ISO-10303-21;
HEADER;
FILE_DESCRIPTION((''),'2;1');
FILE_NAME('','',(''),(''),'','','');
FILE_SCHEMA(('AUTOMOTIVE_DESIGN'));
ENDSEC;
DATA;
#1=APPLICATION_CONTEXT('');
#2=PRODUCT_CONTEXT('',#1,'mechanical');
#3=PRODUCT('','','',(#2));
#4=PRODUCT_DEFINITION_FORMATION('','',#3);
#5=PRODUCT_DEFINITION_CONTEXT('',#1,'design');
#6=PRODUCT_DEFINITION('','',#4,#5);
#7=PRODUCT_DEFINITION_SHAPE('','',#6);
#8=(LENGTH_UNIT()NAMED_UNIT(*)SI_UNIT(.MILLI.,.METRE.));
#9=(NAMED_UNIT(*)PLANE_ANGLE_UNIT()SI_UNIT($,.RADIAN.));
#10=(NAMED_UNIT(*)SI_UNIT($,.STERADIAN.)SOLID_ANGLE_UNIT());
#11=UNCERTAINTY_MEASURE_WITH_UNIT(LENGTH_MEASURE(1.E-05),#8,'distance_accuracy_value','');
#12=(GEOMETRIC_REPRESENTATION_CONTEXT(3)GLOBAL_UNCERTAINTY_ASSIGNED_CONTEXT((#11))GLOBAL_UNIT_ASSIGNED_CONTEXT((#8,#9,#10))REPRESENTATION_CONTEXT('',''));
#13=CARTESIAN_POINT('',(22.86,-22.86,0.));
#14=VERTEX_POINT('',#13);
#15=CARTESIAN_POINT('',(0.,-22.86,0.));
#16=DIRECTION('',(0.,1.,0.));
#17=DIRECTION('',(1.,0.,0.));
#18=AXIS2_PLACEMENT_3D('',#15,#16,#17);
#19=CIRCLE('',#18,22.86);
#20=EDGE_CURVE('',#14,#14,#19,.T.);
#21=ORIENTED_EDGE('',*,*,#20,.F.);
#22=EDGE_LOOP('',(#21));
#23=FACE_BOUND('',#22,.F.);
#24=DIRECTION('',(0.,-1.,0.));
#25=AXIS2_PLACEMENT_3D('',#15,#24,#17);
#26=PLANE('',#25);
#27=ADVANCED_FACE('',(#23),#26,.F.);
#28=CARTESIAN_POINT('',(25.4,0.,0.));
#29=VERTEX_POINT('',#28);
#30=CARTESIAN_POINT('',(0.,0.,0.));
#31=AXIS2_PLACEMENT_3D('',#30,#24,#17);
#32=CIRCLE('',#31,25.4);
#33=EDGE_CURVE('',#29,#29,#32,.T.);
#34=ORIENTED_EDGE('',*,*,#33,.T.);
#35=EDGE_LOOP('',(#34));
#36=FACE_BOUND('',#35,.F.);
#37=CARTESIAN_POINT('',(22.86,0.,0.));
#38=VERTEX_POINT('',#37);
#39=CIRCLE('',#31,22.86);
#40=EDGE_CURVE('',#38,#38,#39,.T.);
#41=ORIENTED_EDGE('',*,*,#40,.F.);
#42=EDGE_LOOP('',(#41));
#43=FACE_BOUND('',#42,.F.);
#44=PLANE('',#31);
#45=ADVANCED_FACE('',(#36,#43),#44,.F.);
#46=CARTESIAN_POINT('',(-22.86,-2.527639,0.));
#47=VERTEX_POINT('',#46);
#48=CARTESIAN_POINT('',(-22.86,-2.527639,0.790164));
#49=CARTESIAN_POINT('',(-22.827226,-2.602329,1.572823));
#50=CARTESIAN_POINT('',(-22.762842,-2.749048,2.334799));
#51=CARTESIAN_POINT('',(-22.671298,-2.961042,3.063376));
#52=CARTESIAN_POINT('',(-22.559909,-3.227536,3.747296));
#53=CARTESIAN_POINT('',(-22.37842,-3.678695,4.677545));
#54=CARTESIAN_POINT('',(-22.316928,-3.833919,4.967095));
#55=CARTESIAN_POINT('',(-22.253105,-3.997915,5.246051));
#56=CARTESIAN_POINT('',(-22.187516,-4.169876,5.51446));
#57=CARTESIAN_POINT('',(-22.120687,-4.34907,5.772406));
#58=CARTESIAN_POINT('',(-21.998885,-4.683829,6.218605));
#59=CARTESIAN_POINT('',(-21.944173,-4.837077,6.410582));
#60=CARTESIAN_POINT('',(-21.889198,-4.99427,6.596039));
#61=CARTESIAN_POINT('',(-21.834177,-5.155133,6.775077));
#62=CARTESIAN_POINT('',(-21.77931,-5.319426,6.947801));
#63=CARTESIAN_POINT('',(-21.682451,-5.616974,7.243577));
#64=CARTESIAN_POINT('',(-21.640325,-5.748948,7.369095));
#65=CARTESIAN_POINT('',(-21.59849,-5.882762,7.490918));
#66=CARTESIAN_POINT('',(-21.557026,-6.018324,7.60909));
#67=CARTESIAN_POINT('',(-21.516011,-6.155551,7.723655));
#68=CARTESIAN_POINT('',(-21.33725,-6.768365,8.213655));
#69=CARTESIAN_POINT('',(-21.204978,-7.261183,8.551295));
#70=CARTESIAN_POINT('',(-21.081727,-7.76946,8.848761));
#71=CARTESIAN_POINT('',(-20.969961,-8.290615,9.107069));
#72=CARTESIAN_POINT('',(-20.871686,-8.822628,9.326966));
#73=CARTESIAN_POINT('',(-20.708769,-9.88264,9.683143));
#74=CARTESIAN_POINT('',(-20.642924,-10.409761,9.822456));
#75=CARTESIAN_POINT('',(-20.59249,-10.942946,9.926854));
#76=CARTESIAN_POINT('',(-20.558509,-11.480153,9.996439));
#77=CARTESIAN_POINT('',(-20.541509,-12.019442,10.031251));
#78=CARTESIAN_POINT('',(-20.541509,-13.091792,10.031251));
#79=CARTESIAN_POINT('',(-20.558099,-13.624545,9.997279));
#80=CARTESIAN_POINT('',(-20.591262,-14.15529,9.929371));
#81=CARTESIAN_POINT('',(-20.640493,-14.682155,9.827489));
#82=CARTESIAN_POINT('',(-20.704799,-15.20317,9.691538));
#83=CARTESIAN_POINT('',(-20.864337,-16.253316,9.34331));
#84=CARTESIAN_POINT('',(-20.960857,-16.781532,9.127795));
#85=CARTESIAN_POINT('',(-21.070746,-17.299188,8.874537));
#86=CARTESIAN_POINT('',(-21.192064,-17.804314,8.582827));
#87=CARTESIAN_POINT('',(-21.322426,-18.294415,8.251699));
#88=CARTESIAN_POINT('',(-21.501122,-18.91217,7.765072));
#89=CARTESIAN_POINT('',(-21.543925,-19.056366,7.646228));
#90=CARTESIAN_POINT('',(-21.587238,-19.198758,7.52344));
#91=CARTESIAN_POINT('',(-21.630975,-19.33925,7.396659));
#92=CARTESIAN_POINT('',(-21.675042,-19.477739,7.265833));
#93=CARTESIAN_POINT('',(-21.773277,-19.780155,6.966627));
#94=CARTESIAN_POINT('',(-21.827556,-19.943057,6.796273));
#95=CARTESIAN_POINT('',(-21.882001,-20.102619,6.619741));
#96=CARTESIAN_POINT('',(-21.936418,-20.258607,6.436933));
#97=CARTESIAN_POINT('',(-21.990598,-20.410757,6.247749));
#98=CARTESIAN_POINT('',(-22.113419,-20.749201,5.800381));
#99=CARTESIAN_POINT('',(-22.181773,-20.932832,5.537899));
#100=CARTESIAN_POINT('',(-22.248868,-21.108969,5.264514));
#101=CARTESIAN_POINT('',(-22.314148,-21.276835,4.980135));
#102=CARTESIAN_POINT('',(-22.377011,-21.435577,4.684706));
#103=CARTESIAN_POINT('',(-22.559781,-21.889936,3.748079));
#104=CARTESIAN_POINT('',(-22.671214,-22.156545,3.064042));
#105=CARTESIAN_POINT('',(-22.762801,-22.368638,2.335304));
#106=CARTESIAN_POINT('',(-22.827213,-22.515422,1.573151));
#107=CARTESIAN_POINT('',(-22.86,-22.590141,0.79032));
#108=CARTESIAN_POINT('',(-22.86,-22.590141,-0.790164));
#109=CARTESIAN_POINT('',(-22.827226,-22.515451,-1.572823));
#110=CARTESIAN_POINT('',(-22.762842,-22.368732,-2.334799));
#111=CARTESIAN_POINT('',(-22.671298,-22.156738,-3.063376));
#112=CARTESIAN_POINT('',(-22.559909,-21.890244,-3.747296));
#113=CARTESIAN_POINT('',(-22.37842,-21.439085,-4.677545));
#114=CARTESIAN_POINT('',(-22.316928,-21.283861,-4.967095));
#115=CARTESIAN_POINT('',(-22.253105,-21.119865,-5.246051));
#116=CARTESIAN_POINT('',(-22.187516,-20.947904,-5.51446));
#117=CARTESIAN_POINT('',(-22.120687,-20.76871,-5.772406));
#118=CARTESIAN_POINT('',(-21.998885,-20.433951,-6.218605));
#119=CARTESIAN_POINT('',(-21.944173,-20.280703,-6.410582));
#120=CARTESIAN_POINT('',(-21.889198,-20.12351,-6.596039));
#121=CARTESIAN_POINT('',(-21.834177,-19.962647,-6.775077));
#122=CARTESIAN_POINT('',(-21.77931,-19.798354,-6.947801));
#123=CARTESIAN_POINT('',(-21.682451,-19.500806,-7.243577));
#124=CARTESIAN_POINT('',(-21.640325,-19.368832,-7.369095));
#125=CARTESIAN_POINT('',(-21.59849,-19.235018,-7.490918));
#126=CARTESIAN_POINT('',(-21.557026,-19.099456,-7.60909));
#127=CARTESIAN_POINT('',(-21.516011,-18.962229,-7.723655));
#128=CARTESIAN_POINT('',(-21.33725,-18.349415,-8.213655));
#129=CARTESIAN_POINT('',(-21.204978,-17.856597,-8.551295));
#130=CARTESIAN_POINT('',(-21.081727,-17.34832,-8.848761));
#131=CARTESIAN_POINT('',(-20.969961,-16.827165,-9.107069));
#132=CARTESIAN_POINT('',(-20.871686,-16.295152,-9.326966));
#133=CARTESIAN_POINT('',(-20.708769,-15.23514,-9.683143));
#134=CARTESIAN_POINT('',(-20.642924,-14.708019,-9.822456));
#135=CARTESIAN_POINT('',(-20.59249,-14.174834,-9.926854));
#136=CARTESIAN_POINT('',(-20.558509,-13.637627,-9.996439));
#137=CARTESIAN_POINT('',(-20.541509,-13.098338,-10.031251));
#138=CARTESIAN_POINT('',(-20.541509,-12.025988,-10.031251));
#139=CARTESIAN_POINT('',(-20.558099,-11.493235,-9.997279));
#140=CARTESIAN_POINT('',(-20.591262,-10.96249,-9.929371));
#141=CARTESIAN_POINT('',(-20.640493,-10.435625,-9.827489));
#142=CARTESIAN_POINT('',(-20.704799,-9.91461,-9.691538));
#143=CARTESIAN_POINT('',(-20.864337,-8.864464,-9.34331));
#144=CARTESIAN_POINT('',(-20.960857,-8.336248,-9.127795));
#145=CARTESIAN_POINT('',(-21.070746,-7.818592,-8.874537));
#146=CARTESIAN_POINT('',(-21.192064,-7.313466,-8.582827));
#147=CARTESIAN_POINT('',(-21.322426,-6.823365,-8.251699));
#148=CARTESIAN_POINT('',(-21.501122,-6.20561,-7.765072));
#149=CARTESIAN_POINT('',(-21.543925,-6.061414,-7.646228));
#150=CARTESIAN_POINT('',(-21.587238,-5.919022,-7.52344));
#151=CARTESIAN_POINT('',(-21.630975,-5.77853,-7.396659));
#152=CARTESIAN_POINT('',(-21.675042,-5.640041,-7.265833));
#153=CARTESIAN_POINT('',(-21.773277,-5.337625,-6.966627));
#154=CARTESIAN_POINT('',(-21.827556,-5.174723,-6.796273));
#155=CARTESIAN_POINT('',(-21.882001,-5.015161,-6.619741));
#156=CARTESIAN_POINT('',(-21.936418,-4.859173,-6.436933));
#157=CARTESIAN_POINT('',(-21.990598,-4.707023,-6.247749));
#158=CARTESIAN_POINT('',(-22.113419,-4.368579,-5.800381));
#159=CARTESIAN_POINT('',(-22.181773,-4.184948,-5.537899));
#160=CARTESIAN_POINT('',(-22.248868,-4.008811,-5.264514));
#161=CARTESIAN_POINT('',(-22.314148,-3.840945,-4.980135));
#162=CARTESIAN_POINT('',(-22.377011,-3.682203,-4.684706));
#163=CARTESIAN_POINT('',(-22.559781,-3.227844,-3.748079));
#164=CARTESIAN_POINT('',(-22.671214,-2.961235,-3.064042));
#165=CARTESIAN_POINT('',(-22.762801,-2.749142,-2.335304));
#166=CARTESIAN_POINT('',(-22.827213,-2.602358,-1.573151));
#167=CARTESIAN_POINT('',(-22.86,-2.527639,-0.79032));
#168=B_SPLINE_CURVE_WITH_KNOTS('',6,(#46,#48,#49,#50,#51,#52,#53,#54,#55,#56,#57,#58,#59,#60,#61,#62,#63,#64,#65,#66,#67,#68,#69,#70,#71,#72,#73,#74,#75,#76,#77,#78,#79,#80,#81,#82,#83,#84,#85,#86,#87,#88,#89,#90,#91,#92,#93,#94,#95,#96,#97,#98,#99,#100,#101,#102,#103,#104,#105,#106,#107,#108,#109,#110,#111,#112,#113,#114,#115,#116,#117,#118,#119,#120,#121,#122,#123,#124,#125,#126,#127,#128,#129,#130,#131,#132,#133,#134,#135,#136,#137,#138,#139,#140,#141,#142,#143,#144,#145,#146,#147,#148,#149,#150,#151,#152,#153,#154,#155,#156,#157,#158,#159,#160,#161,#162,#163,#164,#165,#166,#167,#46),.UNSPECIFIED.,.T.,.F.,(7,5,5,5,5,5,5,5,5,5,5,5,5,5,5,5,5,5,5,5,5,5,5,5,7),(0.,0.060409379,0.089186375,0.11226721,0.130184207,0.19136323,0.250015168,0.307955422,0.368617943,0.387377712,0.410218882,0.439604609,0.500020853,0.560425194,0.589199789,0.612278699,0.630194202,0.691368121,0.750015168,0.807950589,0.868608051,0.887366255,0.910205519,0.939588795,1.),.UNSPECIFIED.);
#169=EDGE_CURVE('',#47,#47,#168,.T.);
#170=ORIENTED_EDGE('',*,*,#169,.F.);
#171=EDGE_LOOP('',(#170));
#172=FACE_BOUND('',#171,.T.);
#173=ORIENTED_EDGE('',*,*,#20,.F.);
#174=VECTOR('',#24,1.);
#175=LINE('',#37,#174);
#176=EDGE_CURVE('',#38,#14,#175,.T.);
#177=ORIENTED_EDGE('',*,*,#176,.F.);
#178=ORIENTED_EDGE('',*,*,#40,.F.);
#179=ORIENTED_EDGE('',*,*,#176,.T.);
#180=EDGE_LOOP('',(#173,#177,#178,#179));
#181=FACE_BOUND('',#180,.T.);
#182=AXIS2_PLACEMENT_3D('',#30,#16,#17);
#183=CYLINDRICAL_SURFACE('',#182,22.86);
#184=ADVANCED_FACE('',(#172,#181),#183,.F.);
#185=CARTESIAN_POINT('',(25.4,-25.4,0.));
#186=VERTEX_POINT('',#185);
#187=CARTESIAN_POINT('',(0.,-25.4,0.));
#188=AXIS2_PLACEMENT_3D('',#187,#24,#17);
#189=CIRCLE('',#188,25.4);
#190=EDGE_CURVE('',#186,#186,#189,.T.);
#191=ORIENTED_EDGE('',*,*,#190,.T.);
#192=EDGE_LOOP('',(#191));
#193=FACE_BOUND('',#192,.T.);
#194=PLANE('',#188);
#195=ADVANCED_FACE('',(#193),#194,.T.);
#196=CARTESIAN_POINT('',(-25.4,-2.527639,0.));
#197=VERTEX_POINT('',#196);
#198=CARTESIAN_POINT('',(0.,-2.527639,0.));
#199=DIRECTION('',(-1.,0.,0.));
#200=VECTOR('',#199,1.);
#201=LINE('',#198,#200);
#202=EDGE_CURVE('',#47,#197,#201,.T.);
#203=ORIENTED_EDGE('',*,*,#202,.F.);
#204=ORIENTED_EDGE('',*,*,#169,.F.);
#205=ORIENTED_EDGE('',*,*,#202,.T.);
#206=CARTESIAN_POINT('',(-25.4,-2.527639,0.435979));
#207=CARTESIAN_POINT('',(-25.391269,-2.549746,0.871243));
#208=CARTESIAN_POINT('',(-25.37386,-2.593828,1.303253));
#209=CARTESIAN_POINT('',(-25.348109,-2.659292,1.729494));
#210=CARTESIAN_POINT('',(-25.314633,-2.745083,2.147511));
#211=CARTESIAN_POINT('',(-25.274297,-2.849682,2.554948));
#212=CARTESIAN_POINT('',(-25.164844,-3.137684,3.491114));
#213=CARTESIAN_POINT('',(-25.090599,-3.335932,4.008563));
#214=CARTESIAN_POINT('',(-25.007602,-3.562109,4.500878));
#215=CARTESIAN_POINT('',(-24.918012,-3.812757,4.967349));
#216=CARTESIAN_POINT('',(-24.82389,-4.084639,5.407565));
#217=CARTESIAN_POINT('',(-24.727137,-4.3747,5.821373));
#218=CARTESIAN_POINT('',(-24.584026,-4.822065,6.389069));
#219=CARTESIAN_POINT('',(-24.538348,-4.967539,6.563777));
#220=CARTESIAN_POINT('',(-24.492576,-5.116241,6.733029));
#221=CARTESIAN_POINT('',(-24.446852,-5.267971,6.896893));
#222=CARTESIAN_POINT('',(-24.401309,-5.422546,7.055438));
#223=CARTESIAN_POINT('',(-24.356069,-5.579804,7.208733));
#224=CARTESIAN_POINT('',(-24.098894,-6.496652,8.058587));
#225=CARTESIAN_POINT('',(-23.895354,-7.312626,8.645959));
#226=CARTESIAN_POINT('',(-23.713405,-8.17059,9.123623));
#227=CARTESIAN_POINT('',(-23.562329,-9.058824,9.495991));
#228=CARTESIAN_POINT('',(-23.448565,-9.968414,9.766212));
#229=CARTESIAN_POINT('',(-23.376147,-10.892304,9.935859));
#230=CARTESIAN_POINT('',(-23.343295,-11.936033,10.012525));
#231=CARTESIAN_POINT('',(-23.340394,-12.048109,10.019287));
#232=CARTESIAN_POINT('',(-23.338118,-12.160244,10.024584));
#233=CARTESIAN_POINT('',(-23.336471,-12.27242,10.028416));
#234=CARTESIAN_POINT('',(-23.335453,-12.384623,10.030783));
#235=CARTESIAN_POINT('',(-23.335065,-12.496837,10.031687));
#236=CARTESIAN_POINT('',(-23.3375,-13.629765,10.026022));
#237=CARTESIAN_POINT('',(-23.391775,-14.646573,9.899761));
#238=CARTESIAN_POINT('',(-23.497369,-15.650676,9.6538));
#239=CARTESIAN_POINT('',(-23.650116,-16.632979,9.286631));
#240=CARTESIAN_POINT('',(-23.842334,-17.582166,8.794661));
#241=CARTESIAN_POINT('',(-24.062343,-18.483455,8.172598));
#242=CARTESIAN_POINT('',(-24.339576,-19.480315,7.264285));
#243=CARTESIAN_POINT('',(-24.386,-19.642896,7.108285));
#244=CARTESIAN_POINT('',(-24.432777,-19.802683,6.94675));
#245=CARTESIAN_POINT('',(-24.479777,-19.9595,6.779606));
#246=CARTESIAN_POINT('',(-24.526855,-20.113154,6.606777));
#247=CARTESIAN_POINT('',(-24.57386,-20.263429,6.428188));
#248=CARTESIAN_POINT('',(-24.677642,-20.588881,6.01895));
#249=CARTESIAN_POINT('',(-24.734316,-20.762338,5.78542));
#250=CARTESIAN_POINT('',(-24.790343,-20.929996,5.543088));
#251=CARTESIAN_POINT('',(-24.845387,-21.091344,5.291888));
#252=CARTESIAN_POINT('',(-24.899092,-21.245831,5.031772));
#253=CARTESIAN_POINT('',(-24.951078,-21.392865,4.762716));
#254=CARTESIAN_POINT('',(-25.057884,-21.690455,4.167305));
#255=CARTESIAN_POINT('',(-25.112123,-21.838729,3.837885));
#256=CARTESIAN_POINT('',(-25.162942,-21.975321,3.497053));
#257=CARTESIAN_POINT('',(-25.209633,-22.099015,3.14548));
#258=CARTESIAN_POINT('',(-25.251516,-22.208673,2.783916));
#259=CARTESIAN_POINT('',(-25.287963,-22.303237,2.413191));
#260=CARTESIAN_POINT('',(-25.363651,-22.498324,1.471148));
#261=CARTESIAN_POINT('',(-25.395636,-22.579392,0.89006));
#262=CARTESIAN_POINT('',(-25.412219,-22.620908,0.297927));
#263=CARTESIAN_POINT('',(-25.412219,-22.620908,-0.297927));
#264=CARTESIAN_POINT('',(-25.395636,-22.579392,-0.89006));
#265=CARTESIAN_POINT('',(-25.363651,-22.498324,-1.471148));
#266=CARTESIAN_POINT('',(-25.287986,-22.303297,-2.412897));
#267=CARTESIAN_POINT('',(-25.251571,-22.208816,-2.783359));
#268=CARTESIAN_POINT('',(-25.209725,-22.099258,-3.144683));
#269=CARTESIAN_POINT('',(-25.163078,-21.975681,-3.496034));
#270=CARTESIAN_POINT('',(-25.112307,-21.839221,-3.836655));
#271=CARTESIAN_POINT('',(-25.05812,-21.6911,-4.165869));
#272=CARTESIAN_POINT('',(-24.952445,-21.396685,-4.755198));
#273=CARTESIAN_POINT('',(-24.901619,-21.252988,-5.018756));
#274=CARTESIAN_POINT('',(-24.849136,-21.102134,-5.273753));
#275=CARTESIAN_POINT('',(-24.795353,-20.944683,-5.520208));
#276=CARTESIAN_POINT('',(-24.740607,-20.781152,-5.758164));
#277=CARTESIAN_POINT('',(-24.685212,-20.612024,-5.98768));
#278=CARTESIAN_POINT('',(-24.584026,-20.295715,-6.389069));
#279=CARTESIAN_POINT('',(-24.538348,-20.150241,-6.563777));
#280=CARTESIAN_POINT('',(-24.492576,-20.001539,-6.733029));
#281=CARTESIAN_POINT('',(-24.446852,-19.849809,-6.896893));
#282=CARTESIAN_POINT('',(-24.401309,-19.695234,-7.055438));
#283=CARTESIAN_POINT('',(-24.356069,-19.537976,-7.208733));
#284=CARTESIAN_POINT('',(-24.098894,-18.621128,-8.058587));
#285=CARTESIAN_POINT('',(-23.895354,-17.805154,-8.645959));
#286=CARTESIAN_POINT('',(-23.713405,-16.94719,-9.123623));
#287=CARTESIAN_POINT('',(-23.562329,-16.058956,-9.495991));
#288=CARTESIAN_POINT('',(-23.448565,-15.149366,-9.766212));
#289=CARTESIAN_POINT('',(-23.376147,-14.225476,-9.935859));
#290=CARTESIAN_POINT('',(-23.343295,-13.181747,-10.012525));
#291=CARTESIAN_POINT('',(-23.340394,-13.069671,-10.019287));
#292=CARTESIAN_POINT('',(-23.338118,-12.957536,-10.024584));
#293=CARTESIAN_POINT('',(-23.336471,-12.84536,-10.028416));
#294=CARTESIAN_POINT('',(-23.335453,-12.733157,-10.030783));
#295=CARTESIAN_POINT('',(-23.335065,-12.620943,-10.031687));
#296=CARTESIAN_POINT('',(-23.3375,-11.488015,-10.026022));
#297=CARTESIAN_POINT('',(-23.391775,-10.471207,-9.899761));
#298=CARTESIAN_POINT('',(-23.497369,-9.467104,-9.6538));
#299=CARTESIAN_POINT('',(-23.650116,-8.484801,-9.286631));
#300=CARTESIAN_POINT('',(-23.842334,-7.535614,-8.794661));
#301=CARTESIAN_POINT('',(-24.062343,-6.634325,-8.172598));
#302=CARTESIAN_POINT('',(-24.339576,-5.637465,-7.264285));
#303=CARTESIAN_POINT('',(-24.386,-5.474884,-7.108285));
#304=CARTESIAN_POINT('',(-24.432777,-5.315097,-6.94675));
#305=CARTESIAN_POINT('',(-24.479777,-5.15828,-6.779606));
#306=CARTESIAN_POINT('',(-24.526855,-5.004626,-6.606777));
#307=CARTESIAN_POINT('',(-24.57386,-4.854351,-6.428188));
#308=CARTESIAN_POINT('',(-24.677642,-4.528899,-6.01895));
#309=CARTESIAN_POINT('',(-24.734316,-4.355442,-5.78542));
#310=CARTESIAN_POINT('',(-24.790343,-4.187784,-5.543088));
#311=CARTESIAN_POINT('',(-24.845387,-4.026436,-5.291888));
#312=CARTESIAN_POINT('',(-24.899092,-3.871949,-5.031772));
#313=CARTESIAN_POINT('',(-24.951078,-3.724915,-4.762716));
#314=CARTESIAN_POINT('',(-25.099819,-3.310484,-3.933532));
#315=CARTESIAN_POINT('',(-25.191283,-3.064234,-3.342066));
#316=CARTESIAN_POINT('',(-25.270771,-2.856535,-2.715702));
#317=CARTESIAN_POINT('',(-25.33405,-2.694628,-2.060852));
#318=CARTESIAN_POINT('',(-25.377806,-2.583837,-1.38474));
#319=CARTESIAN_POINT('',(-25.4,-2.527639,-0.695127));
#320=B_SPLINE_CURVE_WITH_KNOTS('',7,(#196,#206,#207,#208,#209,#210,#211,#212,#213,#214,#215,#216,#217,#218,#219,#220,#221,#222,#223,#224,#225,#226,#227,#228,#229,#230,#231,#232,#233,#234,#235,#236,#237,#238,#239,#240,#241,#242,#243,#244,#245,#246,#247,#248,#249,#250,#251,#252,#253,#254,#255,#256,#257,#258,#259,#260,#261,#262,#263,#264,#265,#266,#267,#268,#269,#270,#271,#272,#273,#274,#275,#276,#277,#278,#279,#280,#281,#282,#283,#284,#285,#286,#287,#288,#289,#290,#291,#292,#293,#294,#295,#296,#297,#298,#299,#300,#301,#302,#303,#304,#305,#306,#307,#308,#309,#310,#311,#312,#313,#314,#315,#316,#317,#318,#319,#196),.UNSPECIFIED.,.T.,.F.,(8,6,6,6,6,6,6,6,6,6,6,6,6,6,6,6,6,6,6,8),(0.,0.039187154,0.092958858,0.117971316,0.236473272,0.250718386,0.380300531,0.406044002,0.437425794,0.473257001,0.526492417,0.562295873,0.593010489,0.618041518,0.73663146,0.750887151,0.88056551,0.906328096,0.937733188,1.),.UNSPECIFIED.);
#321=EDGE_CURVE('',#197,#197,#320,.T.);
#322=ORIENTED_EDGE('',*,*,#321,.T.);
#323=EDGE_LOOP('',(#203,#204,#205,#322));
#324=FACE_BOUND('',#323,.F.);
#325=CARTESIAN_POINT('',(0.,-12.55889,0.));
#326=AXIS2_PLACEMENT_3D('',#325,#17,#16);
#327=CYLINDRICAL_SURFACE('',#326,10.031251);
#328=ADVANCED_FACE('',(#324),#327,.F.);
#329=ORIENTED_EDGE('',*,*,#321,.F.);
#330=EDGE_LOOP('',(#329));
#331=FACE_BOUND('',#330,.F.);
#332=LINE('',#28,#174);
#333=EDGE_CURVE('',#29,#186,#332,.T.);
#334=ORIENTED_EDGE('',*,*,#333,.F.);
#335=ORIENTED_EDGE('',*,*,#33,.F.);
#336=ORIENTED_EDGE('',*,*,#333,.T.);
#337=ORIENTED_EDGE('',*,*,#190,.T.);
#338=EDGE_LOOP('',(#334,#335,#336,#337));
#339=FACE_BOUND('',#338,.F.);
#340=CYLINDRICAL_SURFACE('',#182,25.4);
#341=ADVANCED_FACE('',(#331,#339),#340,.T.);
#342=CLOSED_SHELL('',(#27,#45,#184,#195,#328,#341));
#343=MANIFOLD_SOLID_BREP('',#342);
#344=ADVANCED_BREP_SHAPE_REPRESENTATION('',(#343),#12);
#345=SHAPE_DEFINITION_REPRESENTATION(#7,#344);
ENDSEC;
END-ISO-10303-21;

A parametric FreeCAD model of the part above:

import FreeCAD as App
import Part
import Sketcher

V = App.Vector
Q = App.Units.Quantity


def faces_at(feature, points):
    """Names of the faces that lie closest to the given points."""
    faces = feature.Shape.Faces
    near = lambda p: min(range(len(faces)), key=lambda i: faces[i].distToShape(Part.Vertex(*p))[0])
    return sorted({f"Face{near(p) + 1}" for p in points})

doc = App.newDocument("Part")
body = doc.addObject("PartDesign::Body", "Body")

# Sketch on XZ plane
sketch1 = body.newObject("Sketcher::SketchObject", "Sketch")
sketch1.AttachmentSupport = (doc.getObject("XZ_Plane"), [""])
sketch1.MapMode = "FlatFace"
sketch1.addGeometry(Part.Circle(V(0, 0, 0), V(0, 0, 1), 25), False)
sketch1.addConstraint(Sketcher.Constraint("Coincident", 0, 3, -1, 1))
sketch1.addConstraint(Sketcher.Constraint("Diameter", 0, Q("2 in")))
pad1 = body.newObject("PartDesign::Pad", "Pad")
pad1.Profile = sketch1
pad1.Length = Q("1 in")
doc.recompute()

thickness = body.newObject("PartDesign::Thickness", "Thickness")
thickness.Base = (pad1, faces_at(pad1, [(0, 0, 0)]))
thickness.Value = Q("0.1 in")
thickness.Reversed = True
thickness.Join = "Arc"

# Sketch on YZ plane
sketch2 = body.newObject("Sketcher::SketchObject", "Sketch001")
sketch2.AttachmentSupport = (doc.getObject("YZ_Plane"), [""])
sketch2.MapMode = "FlatFace"
sketch2.addGeometry(Part.Circle(V(-13, 0, 0), V(0, 0, 1), 10), False)
sketch2.addConstraint(Sketcher.Constraint("PointOnObject", 0, 3, -1))
sketch2.addConstraint(Sketcher.Constraint("Diameter", 0, Q("20.062502 mm")))
sketch2.addConstraint(Sketcher.Constraint("DistanceX", 0, 3, -1, 1, Q("12.55889 mm")))
pocket1 = body.newObject("PartDesign::Pocket", "Pocket")
pocket1.Profile = sketch2
pocket1.Type = "ThroughAll"

doc.recompute()
